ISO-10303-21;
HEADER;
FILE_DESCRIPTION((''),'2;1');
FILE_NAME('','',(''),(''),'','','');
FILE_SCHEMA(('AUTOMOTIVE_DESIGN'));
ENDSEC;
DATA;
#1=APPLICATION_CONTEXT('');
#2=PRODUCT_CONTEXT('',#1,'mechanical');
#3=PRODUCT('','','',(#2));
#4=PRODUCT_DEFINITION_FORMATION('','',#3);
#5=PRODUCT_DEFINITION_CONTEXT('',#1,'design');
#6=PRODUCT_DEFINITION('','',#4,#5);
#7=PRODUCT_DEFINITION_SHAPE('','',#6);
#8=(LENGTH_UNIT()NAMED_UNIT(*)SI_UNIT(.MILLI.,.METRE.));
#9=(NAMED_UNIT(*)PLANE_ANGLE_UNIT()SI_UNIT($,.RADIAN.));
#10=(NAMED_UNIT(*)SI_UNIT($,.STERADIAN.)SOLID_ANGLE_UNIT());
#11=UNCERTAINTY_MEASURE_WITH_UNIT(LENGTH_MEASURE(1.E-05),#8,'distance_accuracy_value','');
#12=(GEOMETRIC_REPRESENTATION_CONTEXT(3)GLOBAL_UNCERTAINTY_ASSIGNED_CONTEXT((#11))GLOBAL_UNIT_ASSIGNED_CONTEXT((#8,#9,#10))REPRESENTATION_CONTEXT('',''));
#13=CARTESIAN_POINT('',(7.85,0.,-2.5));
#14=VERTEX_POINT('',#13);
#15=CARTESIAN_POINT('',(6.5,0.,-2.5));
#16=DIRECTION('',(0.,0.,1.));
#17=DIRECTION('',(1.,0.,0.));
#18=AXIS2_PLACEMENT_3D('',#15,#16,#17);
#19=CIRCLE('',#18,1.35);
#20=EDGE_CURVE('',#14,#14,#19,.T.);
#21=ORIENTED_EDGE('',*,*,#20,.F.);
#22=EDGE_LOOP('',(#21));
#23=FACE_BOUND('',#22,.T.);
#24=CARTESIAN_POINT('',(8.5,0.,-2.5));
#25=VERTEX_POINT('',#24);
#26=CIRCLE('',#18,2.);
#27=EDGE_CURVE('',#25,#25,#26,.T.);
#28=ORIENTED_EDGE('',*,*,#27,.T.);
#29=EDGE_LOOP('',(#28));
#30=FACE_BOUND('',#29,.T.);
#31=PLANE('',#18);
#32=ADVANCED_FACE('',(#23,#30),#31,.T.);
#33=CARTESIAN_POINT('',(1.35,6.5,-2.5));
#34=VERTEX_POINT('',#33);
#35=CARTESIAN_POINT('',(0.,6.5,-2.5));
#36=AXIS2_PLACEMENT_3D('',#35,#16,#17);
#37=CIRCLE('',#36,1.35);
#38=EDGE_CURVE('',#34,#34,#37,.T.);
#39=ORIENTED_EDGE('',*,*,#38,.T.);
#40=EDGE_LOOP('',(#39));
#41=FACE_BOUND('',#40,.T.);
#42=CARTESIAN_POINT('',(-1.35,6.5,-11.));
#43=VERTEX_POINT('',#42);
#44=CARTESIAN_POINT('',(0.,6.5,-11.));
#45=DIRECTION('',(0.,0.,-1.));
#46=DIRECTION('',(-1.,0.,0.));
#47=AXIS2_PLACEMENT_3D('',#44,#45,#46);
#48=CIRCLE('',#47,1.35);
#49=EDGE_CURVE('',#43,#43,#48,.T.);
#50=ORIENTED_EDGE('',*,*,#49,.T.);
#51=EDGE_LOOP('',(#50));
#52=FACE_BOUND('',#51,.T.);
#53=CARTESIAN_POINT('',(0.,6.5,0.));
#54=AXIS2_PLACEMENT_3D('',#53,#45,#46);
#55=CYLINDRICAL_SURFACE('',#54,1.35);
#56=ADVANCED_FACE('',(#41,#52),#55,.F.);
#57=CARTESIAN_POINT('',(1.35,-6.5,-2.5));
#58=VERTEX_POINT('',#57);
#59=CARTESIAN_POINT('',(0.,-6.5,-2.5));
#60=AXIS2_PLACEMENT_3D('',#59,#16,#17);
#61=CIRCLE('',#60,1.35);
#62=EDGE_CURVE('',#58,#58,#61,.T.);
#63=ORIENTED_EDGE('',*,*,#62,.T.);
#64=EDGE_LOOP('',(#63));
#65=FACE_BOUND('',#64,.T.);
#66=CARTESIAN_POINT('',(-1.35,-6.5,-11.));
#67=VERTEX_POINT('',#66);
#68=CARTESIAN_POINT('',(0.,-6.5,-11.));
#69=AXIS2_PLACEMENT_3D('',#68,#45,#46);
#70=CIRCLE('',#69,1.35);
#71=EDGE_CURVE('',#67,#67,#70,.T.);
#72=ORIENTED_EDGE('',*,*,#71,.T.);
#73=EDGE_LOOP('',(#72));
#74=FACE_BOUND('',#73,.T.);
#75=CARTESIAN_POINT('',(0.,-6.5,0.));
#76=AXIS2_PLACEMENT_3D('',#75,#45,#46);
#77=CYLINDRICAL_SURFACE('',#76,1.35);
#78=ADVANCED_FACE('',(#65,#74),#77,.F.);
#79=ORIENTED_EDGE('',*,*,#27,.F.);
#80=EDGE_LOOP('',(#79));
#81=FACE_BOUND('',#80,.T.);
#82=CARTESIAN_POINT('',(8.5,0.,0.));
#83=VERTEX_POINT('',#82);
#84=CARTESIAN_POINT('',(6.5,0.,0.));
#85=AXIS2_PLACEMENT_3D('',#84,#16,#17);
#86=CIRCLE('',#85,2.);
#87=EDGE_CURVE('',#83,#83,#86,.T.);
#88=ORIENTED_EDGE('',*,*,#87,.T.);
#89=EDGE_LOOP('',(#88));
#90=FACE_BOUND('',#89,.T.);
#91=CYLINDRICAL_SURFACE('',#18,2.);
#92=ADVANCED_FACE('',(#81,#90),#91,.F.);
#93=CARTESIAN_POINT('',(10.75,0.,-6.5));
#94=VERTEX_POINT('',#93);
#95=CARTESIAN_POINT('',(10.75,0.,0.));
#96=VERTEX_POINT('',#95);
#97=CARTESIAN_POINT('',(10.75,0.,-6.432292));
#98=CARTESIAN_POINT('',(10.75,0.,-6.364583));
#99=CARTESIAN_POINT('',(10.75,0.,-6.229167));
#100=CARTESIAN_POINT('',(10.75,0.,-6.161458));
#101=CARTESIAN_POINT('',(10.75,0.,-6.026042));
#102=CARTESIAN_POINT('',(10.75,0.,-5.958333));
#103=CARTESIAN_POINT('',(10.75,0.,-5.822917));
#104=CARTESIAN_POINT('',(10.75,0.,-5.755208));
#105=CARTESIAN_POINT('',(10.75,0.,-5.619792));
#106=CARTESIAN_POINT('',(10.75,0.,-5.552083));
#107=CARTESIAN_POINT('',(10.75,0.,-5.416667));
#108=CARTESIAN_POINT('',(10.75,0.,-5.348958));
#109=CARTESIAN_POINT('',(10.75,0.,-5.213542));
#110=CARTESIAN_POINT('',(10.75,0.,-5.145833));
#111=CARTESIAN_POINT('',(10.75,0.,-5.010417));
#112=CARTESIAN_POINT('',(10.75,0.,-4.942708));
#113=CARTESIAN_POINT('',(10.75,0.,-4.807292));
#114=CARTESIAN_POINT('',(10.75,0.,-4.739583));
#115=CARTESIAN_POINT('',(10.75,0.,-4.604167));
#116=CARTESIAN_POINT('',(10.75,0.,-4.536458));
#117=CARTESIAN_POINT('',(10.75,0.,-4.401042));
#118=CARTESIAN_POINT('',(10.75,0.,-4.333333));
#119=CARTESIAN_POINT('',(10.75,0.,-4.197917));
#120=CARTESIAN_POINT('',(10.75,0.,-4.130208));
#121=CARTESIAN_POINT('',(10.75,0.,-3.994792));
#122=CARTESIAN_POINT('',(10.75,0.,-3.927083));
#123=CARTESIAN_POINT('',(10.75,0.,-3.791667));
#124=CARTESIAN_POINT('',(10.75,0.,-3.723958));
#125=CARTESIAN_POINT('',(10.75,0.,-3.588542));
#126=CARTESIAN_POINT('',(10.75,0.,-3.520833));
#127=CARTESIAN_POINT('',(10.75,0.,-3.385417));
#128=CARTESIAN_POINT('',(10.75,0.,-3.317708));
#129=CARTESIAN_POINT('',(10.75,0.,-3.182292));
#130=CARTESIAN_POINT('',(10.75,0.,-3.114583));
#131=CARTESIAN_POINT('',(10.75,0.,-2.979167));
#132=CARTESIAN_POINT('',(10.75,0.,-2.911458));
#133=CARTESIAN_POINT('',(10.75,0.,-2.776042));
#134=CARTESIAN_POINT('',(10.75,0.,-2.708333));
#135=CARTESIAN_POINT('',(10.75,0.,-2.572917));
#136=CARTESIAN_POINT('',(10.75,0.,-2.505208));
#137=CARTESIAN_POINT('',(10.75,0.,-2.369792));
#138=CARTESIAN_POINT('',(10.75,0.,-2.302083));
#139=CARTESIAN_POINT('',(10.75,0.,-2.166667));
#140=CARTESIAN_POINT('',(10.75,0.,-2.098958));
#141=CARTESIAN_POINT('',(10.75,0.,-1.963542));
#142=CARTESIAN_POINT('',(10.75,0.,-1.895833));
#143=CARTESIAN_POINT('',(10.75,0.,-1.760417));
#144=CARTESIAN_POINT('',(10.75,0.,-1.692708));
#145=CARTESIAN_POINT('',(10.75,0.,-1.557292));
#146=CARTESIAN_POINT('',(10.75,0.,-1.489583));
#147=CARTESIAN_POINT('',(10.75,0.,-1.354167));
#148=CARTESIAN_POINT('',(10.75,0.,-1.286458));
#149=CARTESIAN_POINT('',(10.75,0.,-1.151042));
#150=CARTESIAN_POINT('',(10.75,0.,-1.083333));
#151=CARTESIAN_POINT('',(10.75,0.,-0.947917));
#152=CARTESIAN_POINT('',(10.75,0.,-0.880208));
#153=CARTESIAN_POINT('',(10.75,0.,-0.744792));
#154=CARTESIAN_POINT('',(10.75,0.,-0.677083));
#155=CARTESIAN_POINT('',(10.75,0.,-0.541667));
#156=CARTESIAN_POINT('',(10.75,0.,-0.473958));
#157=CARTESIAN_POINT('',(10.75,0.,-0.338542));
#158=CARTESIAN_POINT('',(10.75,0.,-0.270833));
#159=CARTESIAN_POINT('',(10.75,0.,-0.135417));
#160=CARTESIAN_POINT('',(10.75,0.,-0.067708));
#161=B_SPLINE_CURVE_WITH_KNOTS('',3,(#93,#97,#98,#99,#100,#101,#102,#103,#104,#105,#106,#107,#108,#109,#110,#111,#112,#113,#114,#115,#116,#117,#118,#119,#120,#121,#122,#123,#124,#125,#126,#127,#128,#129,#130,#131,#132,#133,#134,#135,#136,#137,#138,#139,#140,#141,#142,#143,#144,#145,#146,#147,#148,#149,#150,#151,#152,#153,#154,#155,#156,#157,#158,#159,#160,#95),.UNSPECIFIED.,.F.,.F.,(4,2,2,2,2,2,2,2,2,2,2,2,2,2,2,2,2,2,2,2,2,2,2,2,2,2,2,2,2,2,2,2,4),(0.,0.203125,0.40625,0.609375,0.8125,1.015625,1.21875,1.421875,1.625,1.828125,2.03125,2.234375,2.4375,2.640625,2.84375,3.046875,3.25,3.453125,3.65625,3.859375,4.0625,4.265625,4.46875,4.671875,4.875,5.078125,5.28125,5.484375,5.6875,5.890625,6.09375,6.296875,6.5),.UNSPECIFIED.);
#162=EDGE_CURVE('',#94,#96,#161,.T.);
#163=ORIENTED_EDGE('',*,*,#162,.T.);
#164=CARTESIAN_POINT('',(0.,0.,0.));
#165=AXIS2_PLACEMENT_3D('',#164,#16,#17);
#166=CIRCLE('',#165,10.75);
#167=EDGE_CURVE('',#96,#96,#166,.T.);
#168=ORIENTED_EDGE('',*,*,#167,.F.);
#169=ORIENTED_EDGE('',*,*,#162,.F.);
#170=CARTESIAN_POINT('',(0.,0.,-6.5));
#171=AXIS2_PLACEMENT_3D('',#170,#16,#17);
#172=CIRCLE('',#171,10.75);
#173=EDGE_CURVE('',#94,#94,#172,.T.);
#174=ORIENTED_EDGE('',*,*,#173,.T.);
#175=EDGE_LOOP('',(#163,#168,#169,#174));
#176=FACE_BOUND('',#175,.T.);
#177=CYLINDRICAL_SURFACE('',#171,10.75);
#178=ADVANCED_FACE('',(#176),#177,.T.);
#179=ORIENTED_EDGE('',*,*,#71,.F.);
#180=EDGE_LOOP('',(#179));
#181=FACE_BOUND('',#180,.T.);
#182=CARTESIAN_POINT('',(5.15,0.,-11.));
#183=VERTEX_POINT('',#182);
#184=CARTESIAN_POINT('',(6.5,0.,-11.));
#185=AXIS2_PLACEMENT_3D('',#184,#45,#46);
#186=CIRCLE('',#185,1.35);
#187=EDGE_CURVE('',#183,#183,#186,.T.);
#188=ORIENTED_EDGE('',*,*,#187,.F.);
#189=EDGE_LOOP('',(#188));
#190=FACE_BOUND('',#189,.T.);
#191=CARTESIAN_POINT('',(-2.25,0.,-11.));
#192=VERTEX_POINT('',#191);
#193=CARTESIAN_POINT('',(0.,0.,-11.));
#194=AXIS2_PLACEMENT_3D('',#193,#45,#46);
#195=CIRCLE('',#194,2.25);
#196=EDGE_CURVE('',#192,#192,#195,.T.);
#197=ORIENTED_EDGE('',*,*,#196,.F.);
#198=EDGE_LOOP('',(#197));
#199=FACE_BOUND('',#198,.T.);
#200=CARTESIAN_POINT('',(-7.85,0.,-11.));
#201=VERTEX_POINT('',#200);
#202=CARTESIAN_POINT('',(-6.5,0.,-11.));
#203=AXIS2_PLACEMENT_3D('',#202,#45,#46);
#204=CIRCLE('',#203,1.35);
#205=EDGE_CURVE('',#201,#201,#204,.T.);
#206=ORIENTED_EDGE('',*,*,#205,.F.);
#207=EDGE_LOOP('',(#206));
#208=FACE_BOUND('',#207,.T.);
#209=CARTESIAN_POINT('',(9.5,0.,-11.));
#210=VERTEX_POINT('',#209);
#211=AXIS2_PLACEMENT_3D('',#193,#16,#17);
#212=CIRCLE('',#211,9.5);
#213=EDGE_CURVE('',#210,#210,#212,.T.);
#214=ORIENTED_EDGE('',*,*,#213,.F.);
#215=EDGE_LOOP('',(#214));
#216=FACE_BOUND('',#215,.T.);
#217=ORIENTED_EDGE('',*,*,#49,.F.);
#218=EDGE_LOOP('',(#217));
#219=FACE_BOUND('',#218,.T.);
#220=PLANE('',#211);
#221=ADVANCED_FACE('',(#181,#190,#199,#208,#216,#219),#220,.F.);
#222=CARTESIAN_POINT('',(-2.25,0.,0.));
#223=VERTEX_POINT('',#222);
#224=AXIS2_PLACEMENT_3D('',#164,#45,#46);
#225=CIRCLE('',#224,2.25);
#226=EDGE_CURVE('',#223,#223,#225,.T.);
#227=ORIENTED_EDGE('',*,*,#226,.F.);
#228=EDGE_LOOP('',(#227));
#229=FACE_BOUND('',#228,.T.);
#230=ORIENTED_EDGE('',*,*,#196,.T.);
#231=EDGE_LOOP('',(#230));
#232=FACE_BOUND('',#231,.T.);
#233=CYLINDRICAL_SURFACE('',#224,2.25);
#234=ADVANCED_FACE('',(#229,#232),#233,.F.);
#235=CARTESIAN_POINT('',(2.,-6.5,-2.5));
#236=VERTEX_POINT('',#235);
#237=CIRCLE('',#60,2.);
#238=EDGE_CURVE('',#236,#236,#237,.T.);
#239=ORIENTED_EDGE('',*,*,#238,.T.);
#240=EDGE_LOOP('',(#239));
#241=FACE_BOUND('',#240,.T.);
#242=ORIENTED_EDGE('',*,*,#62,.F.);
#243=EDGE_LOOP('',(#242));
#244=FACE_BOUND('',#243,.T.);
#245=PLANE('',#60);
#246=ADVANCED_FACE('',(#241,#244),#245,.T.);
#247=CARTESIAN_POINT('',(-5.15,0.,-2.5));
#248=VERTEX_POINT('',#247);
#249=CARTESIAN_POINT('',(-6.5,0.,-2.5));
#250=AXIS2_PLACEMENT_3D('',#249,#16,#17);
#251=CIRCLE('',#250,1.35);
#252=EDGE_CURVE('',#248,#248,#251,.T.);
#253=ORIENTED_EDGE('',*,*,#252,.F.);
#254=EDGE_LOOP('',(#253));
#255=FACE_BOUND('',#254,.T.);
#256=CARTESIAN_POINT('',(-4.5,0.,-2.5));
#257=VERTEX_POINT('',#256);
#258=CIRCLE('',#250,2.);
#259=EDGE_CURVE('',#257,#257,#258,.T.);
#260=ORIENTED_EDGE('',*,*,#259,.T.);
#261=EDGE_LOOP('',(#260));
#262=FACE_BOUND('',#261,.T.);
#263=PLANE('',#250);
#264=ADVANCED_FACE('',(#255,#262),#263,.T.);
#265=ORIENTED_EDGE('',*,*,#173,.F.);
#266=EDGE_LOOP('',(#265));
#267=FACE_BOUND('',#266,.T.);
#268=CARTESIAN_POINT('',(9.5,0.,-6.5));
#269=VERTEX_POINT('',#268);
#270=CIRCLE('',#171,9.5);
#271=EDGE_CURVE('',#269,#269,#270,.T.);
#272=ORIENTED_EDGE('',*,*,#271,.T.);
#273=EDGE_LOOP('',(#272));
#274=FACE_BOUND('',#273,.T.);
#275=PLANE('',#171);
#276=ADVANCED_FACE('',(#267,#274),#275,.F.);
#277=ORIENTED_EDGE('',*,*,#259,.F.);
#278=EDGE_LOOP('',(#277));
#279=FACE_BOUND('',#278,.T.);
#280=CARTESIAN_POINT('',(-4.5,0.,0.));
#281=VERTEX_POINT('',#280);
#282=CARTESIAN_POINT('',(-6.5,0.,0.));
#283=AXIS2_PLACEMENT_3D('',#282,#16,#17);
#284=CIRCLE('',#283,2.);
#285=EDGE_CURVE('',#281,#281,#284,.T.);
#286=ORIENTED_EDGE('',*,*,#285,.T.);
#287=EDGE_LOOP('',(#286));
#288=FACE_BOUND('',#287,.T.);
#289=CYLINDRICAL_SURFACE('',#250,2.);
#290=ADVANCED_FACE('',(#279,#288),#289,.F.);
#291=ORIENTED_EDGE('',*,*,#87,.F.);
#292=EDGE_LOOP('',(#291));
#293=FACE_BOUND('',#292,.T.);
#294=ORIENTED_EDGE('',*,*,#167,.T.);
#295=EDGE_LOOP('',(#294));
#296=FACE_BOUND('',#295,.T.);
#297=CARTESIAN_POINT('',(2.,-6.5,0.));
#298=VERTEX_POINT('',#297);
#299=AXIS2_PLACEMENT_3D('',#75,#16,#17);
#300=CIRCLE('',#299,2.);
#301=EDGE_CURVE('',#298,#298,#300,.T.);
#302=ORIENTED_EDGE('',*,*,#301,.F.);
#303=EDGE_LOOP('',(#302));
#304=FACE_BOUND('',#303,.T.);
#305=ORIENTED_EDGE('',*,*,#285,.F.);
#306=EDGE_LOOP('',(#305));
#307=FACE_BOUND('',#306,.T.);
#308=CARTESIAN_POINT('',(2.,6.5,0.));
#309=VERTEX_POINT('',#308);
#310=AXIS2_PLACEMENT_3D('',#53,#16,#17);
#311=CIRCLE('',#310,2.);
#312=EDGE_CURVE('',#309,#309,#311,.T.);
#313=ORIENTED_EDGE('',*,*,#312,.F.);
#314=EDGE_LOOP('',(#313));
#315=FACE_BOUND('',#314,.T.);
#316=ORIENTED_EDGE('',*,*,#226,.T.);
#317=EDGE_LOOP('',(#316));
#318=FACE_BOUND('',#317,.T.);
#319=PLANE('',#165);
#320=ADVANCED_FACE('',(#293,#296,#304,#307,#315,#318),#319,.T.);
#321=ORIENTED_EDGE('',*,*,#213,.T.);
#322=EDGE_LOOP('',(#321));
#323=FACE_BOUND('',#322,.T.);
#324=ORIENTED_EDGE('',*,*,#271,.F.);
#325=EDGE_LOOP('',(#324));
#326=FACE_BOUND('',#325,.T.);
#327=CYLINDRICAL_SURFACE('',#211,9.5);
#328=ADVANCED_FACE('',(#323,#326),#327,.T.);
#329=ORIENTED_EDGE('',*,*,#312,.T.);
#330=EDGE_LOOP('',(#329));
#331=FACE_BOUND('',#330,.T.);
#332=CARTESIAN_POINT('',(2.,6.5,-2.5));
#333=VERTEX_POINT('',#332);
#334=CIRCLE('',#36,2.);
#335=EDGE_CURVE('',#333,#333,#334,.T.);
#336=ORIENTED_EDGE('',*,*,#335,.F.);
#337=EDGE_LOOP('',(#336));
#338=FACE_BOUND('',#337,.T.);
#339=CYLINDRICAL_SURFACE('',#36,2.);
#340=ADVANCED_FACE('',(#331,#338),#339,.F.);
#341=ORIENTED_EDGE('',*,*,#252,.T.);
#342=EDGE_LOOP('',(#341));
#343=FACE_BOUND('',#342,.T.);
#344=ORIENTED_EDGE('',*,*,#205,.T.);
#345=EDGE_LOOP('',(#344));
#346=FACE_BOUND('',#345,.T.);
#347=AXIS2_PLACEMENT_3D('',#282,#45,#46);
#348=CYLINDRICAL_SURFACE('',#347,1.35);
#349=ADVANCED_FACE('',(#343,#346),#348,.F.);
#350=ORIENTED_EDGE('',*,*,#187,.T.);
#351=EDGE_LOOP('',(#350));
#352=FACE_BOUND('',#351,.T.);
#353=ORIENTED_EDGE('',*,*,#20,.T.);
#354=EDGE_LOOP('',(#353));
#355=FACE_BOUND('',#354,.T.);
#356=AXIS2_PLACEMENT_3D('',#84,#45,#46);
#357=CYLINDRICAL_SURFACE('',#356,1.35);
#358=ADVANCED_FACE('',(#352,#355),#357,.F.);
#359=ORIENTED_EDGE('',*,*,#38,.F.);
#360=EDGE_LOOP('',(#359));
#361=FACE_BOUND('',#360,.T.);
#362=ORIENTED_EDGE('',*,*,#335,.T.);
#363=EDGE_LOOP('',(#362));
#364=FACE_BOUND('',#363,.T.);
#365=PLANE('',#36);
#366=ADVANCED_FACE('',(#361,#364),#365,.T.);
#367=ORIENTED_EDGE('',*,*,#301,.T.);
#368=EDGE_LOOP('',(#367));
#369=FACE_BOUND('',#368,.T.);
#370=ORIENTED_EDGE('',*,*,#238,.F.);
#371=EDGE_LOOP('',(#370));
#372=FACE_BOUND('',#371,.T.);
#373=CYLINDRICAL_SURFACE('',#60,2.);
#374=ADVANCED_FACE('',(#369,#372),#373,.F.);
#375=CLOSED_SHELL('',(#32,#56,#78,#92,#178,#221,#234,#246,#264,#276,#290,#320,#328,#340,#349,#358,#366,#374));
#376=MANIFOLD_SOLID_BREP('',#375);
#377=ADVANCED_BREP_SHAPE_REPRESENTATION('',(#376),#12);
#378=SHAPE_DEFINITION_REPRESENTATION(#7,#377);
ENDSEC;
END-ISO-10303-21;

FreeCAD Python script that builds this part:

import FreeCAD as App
import Part
import Sketcher
from FreeCAD import Vector

doc = App.newDocument("Part")
body = doc.addObject("PartDesign::Body", "Body")

# Sketch on XY plane
sketch1 = doc.addObject("Sketcher::SketchObject", "Sketch")
body.addObject(sketch1)
sketch1.AttachmentSupport = (doc.XY_Plane, [""])
sketch1.MapMode = "FlatFace"
sketch1.addGeometry(Part.Circle(Vector(0, 0, 0), Vector(0, 0, 1), 9.5), False)
sketch1.addConstraint(Sketcher.Constraint("Coincident", 0, 3, -1, 1))
sketch1.addConstraint(Sketcher.Constraint("Diameter", 0, 19.0))
pad1 = doc.addObject("PartDesign::Pad", "Pad")
body.addObject(pad1)
pad1.Profile = sketch1
pad1.Length = 11
pad1.Reversed = True

# Sketch on XY plane
sketch2 = doc.addObject("Sketcher::SketchObject", "Sketch001")
body.addObject(sketch2)
sketch2.AttachmentSupport = (doc.XY_Plane, [""])
sketch2.MapMode = "FlatFace"
sketch2.addGeometry(Part.Circle(Vector(0, 0, 0), Vector(0, 0, 1), 10.75), False)
sketch2.addGeometry(Part.Circle(Vector(0, 0, 0), Vector(0, 0, 1), 9.5), False)
sketch2.addConstraint(Sketcher.Constraint("Coincident", 0, 3, -1, 1))
sketch2.addConstraint(Sketcher.Constraint("Coincident", 1, 3, -1, 1))
sketch2.addConstraint(Sketcher.Constraint("Diameter", 1, 19.0))
sketch2.addConstraint(Sketcher.Constraint("Diameter", 0, 21.5))
pad2 = doc.addObject("PartDesign::Pad", "Pad001")
body.addObject(pad2)
pad2.Profile = sketch2
pad2.Length = 6.5
pad2.Reversed = True

# Sketch on XY plane
sketch3 = doc.addObject("Sketcher::SketchObject", "Sketch002")
body.addObject(sketch3)
sketch3.AttachmentSupport = (doc.XY_Plane, [""])
sketch3.MapMode = "FlatFace"
sketch3.AttachmentOffset = App.Placement(Vector(0, 0, -11), App.Rotation())
sketch3.addGeometry(Part.Circle(Vector(0, 6.5, 0), Vector(0, 0, 1), 1.35), False)
sketch3.addGeometry(Part.Circle(Vector(6.5, 0, 0), Vector(0, 0, 1), 1.35), False)
sketch3.addGeometry(Part.Circle(Vector(-6.5, 0, 0), Vector(0, 0, 1), 1.35), False)
sketch3.addGeometry(Part.Circle(Vector(0, -6.5, 0), Vector(0, 0, 1), 1.35), False)
sketch3.addConstraint(Sketcher.Constraint("Equal", 0, 1))
sketch3.addConstraint(Sketcher.Constraint("Equal", 1, 2))
sketch3.addConstraint(Sketcher.Constraint("Equal", 2, 3))
sketch3.addConstraint(Sketcher.Constraint("Symmetric", 1, 3, 2, 3, -1, 1))
sketch3.addConstraint(Sketcher.Constraint("Symmetric", 0, 3, 3, 3, -1, 1))
sketch3.addConstraint(Sketcher.Constraint("PointOnObject", 0, 3, -2))
sketch3.addConstraint(Sketcher.Constraint("PointOnObject", 1, 3, -1))
sketch3.addConstraint(Sketcher.Constraint("Diameter", 0, 2.7))
sketch3.addConstraint(Sketcher.Constraint("DistanceX", 2, 3, 1, 3, 13.0))
sketch3.addConstraint(Sketcher.Constraint("DistanceY", 3, 3, 0, 3, 13.0))
pocket1 = doc.addObject("PartDesign::Pocket", "Pocket")
body.addObject(pocket1)
pocket1.Profile = sketch3
pocket1.Type = "ThroughAll"
pocket1.Reversed = True

# Sketch on XY plane
sketch4 = doc.addObject("Sketcher::SketchObject", "Sketch003")
body.addObject(sketch4)
sketch4.AttachmentSupport = (doc.XY_Plane, [""])
sketch4.MapMode = "FlatFace"
sketch4.AttachmentOffset = App.Placement(Vector(0, 0, -11), App.Rotation())
sketch4.addGeometry(Part.Circle(Vector(0, 0, 0), Vector(0, 0, 1), 2.25), False)
sketch4.addConstraint(Sketcher.Constraint("Coincident", 0, 3, -1, 1))
sketch4.addConstraint(Sketcher.Constraint("Diameter", 0, 4.5))
pocket2 = doc.addObject("PartDesign::Pocket", "Pocket001")
body.addObject(pocket2)
pocket2.Profile = sketch4
pocket2.Type = "ThroughAll"
pocket2.Reversed = True

# Sketch on XY plane
sketch5 = doc.addObject("Sketcher::SketchObject", "Sketch004")
body.addObject(sketch5)
sketch5.AttachmentSupport = (doc.XY_Plane, [""])
sketch5.MapMode = "FlatFace"
sketch5.AttachmentOffset = App.Placement(Vector(0, 0, -2.5), App.Rotation())
sketch5.addGeometry(Part.Circle(Vector(6.5, 0, 0), Vector(0, 0, 1), 2), False)
sketch5.addGeometry(Part.Circle(Vector(6.5, 0, 0), Vector(0, 0, 1), 1.35), False)
sketch5.addGeometry(Part.Circle(Vector(0, 6.5, 0), Vector(0, 0, 1), 2), False)
sketch5.addGeometry(Part.Circle(Vector(0, 6.5, 0), Vector(0, 0, 1), 1.35), False)
sketch5.addGeometry(Part.Circle(Vector(-6.5, 0, 0), Vector(0, 0, 1), 2), False)
sketch5.addGeometry(Part.Circle(Vector(-6.5, 0, 0), Vector(0, 0, 1), 1.35), False)
sketch5.addGeometry(Part.Circle(Vector(0, -6.5, 0), Vector(0, 0, 1), 2), False)
sketch5.addGeometry(Part.Circle(Vector(0, -6.5, 0), Vector(0, 0, 1), 1.35), False)
sketch5.addConstraint(Sketcher.Constraint("Coincident", 1, 3, 0, 3))
sketch5.addConstraint(Sketcher.Constraint("Coincident", 3, 3, 2, 3))
sketch5.addConstraint(Sketcher.Constraint("Coincident", 5, 3, 4, 3))
sketch5.addConstraint(Sketcher.Constraint("Coincident", 7, 3, 6, 3))
sketch5.addConstraint(Sketcher.Constraint("Equal", 0, 2))
sketch5.addConstraint(Sketcher.Constraint("Equal", 1, 3))
sketch5.addConstraint(Sketcher.Constraint("Equal", 2, 4))
sketch5.addConstraint(Sketcher.Constraint("Equal", 3, 5))
sketch5.addConstraint(Sketcher.Constraint("Equal", 4, 6))
sketch5.addConstraint(Sketcher.Constraint("Equal", 5, 7))
sketch5.addConstraint(Sketcher.Constraint("Symmetric", 0, 3, 4, 3, -1, 1))
sketch5.addConstraint(Sketcher.Constraint("Symmetric", 2, 3, 6, 3, -1, 1))
sketch5.addConstraint(Sketcher.Constraint("PointOnObject", 0, 3, -1))
sketch5.addConstraint(Sketcher.Constraint("PointOnObject", 2, 3, -2))
sketch5.addConstraint(Sketcher.Constraint("Diameter", 0, 4.0))
sketch5.addConstraint(Sketcher.Constraint("Diameter", 1, 2.7))
sketch5.addConstraint(Sketcher.Constraint("DistanceX", 4, 3, 0, 3, 13.0))
sketch5.addConstraint(Sketcher.Constraint("DistanceY", 6, 3, 2, 3, 13.0))
pocket3 = doc.addObject("PartDesign::Pocket", "Pocket002")
body.addObject(pocket3)
pocket3.Profile = sketch5
pocket3.Length = 2.5
pocket3.Reversed = True

doc.recompute()
